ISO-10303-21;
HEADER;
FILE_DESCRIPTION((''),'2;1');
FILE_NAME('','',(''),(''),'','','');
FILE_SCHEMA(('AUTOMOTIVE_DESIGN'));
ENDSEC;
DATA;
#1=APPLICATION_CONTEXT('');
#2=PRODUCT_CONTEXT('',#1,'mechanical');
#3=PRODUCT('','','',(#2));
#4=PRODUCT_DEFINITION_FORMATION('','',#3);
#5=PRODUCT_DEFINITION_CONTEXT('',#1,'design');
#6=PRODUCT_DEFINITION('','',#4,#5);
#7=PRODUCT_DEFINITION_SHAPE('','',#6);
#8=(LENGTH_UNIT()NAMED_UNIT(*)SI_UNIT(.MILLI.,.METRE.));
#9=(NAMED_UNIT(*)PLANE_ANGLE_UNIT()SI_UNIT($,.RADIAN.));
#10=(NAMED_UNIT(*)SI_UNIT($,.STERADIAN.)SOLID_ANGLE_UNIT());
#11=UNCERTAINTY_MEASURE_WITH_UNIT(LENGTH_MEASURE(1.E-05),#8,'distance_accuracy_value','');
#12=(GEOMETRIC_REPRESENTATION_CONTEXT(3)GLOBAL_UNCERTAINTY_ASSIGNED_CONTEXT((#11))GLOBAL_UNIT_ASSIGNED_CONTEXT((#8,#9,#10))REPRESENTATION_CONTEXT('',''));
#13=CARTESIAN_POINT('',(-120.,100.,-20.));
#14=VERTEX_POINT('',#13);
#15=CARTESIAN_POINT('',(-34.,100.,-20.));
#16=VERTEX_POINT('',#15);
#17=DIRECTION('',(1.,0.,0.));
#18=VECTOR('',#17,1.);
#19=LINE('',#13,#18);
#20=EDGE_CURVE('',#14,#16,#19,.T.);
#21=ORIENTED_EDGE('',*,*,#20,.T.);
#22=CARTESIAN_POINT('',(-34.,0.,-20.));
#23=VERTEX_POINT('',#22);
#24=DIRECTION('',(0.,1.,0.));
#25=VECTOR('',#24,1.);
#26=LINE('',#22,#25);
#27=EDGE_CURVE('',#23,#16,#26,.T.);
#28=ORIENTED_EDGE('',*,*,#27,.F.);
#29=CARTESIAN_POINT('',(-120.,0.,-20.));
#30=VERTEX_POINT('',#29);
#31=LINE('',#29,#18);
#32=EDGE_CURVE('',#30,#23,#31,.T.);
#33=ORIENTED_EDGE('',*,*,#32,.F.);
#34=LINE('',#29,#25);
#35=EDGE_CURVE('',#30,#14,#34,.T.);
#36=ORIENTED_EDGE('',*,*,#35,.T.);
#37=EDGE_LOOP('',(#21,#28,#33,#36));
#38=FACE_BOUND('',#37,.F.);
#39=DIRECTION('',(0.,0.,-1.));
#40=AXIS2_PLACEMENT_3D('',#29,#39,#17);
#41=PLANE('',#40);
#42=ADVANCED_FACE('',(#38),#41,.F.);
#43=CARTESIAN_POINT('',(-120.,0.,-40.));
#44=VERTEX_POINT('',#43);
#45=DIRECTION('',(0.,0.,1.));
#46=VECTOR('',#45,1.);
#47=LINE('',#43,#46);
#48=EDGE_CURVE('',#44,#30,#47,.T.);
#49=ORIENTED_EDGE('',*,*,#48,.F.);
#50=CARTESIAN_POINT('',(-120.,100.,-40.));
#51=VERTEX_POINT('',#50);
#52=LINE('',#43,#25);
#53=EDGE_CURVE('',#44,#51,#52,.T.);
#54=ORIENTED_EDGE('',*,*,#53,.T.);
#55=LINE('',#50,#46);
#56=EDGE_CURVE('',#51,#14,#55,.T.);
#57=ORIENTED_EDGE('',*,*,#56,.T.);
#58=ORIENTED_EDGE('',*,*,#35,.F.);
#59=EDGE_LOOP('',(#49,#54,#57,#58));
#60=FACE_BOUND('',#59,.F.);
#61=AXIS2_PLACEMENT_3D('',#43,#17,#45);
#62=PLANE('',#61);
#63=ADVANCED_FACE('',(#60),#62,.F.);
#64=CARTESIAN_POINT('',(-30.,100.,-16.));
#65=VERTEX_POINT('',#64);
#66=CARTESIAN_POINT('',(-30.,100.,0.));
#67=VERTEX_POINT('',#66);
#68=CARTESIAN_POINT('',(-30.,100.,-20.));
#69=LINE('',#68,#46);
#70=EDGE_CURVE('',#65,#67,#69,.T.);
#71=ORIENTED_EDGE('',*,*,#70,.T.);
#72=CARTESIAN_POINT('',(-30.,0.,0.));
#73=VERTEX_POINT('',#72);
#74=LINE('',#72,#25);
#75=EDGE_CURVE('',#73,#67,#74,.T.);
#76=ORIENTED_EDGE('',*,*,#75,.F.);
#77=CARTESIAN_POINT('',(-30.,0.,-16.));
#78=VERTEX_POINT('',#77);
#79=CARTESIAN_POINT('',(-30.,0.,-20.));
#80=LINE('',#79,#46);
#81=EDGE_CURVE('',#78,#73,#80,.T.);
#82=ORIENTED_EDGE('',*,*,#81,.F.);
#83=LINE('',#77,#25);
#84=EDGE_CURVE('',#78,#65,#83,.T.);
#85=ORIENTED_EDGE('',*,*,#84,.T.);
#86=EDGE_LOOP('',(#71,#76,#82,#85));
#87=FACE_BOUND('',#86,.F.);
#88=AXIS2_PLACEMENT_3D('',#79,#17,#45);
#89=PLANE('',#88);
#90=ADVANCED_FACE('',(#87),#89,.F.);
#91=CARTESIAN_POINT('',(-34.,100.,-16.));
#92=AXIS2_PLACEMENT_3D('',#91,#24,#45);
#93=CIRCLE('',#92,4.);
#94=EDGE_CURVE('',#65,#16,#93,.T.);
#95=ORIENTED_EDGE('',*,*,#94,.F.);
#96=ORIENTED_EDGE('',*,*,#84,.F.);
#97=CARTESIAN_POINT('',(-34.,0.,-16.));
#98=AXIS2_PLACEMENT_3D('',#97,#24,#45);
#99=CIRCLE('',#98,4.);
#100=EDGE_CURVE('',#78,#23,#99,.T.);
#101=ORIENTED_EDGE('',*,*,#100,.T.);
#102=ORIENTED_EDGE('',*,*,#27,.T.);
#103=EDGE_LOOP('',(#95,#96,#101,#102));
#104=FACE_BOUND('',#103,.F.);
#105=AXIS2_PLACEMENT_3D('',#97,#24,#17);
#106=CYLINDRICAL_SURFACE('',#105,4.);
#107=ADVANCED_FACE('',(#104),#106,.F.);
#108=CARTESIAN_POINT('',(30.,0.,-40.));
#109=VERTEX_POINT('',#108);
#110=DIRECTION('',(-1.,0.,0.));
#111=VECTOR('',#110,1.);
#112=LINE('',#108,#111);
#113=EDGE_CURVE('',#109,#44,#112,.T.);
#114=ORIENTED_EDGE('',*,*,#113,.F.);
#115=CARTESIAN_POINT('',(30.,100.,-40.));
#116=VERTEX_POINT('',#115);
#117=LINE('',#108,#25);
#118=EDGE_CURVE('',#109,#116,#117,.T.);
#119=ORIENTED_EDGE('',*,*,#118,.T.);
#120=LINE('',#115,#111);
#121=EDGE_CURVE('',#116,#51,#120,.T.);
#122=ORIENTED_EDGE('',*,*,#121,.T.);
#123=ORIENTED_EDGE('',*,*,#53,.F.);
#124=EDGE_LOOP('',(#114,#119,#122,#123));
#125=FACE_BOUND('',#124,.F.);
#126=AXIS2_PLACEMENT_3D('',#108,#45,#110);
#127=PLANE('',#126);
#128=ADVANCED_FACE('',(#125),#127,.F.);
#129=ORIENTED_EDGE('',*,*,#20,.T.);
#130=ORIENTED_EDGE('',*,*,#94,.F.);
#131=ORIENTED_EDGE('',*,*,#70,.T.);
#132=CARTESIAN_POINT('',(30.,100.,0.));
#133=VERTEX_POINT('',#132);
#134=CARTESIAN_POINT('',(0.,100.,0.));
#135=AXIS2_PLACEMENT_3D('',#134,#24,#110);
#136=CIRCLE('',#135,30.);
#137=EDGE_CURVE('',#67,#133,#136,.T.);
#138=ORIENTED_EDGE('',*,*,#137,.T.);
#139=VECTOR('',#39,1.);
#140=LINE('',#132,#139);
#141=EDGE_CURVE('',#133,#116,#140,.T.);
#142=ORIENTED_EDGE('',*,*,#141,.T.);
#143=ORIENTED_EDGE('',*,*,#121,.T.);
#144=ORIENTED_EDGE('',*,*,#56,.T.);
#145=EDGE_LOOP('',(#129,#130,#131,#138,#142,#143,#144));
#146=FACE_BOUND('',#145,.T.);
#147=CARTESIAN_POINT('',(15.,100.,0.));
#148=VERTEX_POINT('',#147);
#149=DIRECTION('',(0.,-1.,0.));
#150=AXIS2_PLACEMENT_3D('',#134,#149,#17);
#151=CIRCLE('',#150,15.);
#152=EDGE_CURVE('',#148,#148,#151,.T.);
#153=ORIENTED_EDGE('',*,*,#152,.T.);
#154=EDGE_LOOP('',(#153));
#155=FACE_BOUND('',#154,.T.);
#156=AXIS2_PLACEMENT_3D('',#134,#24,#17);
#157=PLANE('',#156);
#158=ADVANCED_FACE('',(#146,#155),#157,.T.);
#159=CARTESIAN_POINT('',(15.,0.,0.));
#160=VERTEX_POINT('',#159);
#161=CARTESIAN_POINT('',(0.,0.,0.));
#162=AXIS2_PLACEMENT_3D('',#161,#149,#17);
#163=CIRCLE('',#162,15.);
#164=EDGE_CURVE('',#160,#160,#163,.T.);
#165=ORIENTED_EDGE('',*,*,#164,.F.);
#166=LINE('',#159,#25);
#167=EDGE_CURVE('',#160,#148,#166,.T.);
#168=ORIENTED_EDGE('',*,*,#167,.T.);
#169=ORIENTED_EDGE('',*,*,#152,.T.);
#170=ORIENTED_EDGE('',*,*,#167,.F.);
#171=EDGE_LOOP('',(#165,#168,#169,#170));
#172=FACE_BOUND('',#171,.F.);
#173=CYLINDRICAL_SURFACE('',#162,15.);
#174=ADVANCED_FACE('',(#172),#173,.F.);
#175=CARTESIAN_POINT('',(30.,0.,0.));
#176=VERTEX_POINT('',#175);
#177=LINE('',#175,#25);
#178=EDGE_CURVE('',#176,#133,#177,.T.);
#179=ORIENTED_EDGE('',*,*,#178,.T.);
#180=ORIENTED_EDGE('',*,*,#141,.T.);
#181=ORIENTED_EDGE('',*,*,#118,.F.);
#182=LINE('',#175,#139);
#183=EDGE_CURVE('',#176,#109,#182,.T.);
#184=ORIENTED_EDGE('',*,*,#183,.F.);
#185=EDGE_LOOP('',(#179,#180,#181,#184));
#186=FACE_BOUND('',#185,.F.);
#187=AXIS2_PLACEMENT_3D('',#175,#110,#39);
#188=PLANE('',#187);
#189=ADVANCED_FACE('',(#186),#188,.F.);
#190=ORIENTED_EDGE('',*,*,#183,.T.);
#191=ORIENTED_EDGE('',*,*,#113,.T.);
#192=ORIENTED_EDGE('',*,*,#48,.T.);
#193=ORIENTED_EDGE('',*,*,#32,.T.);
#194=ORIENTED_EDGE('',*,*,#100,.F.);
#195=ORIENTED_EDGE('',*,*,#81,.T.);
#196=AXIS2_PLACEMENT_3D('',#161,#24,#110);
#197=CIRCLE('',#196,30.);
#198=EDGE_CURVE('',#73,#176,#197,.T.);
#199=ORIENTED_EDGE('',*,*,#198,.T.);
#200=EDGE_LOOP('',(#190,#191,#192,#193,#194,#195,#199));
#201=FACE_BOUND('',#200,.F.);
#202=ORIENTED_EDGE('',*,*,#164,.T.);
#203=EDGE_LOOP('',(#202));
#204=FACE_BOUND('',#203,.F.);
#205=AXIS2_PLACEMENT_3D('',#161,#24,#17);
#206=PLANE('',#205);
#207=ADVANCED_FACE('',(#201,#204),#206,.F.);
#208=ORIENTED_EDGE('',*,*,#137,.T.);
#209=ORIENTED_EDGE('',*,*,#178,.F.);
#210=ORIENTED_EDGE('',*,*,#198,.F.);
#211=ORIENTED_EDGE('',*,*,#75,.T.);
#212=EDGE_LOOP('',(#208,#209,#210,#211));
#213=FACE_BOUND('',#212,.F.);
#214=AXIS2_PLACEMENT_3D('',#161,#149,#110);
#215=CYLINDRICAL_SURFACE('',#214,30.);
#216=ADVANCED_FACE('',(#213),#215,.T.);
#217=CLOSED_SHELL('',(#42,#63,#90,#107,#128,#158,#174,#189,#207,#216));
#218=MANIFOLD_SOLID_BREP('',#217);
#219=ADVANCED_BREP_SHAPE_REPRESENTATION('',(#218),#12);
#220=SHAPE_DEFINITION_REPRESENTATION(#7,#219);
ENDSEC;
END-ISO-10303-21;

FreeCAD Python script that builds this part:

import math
import FreeCAD as App
import Part
import Sketcher


def edges_at(feature, points):
    """Names of the edges that pass closest to the given points."""
    edges = feature.Shape.Edges
    near = lambda p: min(range(len(edges)), key=lambda i: edges[i].distToShape(Part.Vertex(*p))[0])
    return sorted({f"Edge{near(p) + 1}" for p in points})

doc = App.newDocument("Part")
body = doc.addObject("PartDesign::Body", "Body")

# Sketch on XZ plane
sketch1 = doc.addObject("Sketcher::SketchObject", "Sketch")
body.addObject(sketch1)
sketch1.AttachmentSupport = (doc.XZ_Plane, [""])
sketch1.MapMode = "FlatFace"
sketch1.addGeometry([
    Part.LineSegment(App.Vector(30, 0, 0), App.Vector(30, -40, 0)),  # 0
    Part.LineSegment(App.Vector(30, -40, 0), App.Vector(-120, -40, 0)),  # 1
    Part.LineSegment(App.Vector(-120, -40, 0), App.Vector(-120, -20, 0)),  # 2
    Part.LineSegment(App.Vector(-120, -20, 0), App.Vector(-30, -20, 0)),  # 3
    Part.LineSegment(App.Vector(-30, -20, 0), App.Vector(-30, 0, 0)),  # 4
    Part.ArcOfCircle(Part.Circle(App.Vector(0, 0, 0), App.Vector(0, 0, 1), 30), math.radians(0), math.radians(180)),  # 5
], False)
sketch1.addConstraint([
    Sketcher.Constraint("Coincident", 0, 2, 1, 1),
    Sketcher.Constraint("Coincident", 1, 2, 2, 1),
    Sketcher.Constraint("Coincident", 2, 2, 3, 1),
    Sketcher.Constraint("Coincident", 3, 2, 4, 1),
    Sketcher.Constraint("Tangent", 4, 2, 5, 2),
    Sketcher.Constraint("Tangent", 5, 1, 0, 1),
    Sketcher.Constraint("Vertical", 0),
    Sketcher.Constraint("Horizontal", 1),
    Sketcher.Constraint("Vertical", 2),
    Sketcher.Constraint("Horizontal", 3),
    Sketcher.Constraint("Vertical", 4),
    Sketcher.Constraint("Coincident", 5, 3, -1, 1),
    Sketcher.Constraint("Equal", 2, 4),
    Sketcher.Constraint("Radius", 5, 30.0),
    Sketcher.Constraint("DistanceX", 1, 2, 1, 1, 150.0),
    Sketcher.Constraint("DistanceY", 0, 2, 0, 1, 40.0),
])
pad1 = doc.addObject("PartDesign::Pad", "Pad")
body.addObject(pad1)
pad1.Profile = sketch1
pad1.Length = 100
pad1.Reversed = True
doc.recompute()

fillet = doc.addObject("PartDesign::Fillet", "Fillet")
body.addObject(fillet)
fillet.Base = (pad1, edges_at(pad1, [(-30, 50, -20)]))
fillet.Radius = 4

# Sketch on XZ plane
sketch2 = doc.addObject("Sketcher::SketchObject", "Sketch001")
body.addObject(sketch2)
sketch2.AttachmentSupport = (doc.XZ_Plane, [""])
sketch2.MapMode = "FlatFace"
sketch2.addGeometry(Part.Circle(App.Vector(0, 0, 0), App.Vector(0, 0, 1), 15), False)
sketch2.addConstraint([
    Sketcher.Constraint("Coincident", 0, 3, -1, 1),
    Sketcher.Constraint("Diameter", 0, 30.0),
])
pocket1 = doc.addObject("PartDesign::Pocket", "Pocket")
body.addObject(pocket1)
pocket1.Profile = sketch2
pocket1.Length = 100

doc.recompute()
